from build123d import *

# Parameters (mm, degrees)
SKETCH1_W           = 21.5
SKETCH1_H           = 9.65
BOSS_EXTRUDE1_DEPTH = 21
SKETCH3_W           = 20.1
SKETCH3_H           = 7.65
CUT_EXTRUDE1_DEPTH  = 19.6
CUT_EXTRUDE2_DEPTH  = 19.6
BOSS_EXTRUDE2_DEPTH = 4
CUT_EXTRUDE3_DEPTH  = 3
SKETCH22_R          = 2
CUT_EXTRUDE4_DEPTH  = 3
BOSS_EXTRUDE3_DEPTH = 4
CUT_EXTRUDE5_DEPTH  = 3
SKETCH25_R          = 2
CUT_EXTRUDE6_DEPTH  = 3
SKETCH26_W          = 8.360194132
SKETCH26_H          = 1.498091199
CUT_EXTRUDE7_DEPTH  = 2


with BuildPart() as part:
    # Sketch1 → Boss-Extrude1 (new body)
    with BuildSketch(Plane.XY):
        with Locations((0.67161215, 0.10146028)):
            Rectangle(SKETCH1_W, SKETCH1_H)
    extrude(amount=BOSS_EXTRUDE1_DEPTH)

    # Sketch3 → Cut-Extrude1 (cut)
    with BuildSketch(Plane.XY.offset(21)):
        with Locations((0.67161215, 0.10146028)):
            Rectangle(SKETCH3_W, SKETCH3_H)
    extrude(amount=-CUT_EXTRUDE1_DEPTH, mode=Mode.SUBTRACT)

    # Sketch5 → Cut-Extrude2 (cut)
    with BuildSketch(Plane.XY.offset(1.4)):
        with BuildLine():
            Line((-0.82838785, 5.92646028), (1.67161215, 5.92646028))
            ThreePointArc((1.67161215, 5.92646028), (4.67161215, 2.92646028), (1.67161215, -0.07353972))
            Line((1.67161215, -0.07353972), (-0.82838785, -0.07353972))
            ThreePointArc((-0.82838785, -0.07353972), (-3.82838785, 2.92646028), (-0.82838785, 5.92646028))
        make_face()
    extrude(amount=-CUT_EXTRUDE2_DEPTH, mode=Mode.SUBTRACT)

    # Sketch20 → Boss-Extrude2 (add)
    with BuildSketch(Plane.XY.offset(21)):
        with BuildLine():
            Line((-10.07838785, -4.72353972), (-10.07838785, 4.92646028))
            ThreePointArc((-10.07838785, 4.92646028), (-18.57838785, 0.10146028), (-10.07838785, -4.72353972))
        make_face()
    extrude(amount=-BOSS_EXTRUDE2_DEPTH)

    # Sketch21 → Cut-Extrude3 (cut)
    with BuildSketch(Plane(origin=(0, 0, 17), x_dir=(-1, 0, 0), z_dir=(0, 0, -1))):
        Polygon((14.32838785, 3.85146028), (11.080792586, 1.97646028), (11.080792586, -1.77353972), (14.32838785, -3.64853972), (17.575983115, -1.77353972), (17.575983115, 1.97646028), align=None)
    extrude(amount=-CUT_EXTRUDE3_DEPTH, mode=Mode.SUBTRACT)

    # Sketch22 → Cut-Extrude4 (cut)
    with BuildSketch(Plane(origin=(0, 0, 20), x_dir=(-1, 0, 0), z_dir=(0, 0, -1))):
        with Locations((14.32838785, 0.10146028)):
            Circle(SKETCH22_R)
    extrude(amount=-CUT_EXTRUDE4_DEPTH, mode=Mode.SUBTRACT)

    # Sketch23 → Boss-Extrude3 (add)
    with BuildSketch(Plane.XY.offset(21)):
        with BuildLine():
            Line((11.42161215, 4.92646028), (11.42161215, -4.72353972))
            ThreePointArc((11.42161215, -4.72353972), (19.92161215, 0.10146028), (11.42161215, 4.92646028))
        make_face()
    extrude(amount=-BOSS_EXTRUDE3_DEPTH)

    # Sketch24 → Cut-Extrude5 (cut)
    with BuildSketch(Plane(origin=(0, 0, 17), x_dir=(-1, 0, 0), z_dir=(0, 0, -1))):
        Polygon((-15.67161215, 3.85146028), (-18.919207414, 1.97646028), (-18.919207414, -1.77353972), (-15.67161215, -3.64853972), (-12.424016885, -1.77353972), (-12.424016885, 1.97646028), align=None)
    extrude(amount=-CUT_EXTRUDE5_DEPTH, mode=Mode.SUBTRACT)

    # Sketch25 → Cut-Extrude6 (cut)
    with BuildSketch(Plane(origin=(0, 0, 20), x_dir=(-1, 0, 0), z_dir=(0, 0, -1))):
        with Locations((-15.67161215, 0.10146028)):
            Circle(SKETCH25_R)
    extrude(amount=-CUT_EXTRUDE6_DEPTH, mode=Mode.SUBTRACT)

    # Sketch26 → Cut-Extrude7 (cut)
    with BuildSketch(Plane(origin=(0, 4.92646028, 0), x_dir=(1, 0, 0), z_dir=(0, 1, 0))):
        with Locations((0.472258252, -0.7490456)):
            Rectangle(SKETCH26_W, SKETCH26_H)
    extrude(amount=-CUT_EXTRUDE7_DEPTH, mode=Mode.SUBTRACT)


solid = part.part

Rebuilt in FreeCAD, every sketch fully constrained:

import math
import FreeCAD as App
import Part
import Sketcher

V = App.Vector
Q = App.Units.Quantity

doc = App.newDocument("Part")
body = doc.addObject("PartDesign::Body", "Body")

# Sketch on XY plane
sketch1 = doc.addObject("Sketcher::SketchObject", "Sketch")
body.addObject(sketch1)
sketch1.AttachmentSupport = (doc.XY_Plane, [""])
sketch1.MapMode = "FlatFace"
sketch1.addGeometry(Part.LineSegment(V(-10, 5, 0), V(-10, -5, 0)), False)
sketch1.addGeometry(Part.LineSegment(V(-10, -5, 0), V(11, -5, 0)), False)
sketch1.addGeometry(Part.LineSegment(V(11, -5, 0), V(11, 5, 0)), False)
sketch1.addGeometry(Part.LineSegment(V(11, 5, 0), V(-10, 5, 0)), False)
sketch1.addConstraint(Sketcher.Constraint("Coincident", 0, 2, 1, 1))
sketch1.addConstraint(Sketcher.Constraint("Coincident", 1, 2, 2, 1))
sketch1.addConstraint(Sketcher.Constraint("Coincident", 2, 2, 3, 1))
sketch1.addConstraint(Sketcher.Constraint("Coincident", 3, 2, 0, 1))
sketch1.addConstraint(Sketcher.Constraint("Vertical", 0))
sketch1.addConstraint(Sketcher.Constraint("Horizontal", 1))
sketch1.addConstraint(Sketcher.Constraint("Vertical", 2))
sketch1.addConstraint(Sketcher.Constraint("Horizontal", 3))
sketch1.addConstraint(Sketcher.Constraint("DistanceX", 1, 1, 1, 2, 21.5))
sketch1.addConstraint(Sketcher.Constraint("DistanceY", 0, 2, 0, 1, 9.65))
sketch1.addConstraint(Sketcher.Constraint("DistanceY", 0, 2, -1, 1, 4.72354))
sketch1.addConstraint(Sketcher.Constraint("DistanceX", 0, 2, -1, 1, 10.078388))
pad1 = doc.addObject("PartDesign::Pad", "Pad")
body.addObject(pad1)
pad1.Profile = sketch1
pad1.Length = 21

# Sketch on XY plane
sketch2 = doc.addObject("Sketcher::SketchObject", "Sketch001")
body.addObject(sketch2)
sketch2.AttachmentSupport = (doc.XY_Plane, [""])
sketch2.MapMode = "FlatFace"
sketch2.AttachmentOffset = App.Placement(V(0, 0, 21), App.Rotation())
sketch2.addGeometry(Part.LineSegment(V(-9, 4, 0), V(-9, -4, 0)), False)
sketch2.addGeometry(Part.LineSegment(V(-9, -4, 0), V(11, -4, 0)), False)
sketch2.addGeometry(Part.LineSegment(V(11, -4, 0), V(11, 4, 0)), False)
sketch2.addGeometry(Part.LineSegment(V(11, 4, 0), V(-9, 4, 0)), False)
sketch2.addConstraint(Sketcher.Constraint("Coincident", 0, 2, 1, 1))
sketch2.addConstraint(Sketcher.Constraint("Coincident", 1, 2, 2, 1))
sketch2.addConstraint(Sketcher.Constraint("Coincident", 2, 2, 3, 1))
sketch2.addConstraint(Sketcher.Constraint("Coincident", 3, 2, 0, 1))
sketch2.addConstraint(Sketcher.Constraint("Vertical", 0))
sketch2.addConstraint(Sketcher.Constraint("Horizontal", 1))
sketch2.addConstraint(Sketcher.Constraint("Vertical", 2))
sketch2.addConstraint(Sketcher.Constraint("Horizontal", 3))
sketch2.addConstraint(Sketcher.Constraint("DistanceX", 1, 1, 1, 2, 20.1))
sketch2.addConstraint(Sketcher.Constraint("DistanceY", 0, 2, 0, 1, 7.65))
sketch2.addConstraint(Sketcher.Constraint("DistanceY", 0, 2, -1, 1, 3.72354))
sketch2.addConstraint(Sketcher.Constraint("DistanceX", 0, 2, -1, 1, 9.378388))
pocket1 = doc.addObject("PartDesign::Pocket", "Pocket")
body.addObject(pocket1)
pocket1.Profile = sketch2
pocket1.Length = 19.6

# Sketch on XY plane
sketch3 = doc.addObject("Sketcher::SketchObject", "Sketch002")
body.addObject(sketch3)
sketch3.AttachmentSupport = (doc.XY_Plane, [""])
sketch3.MapMode = "FlatFace"
sketch3.AttachmentOffset = App.Placement(V(0, 0, 1.4), App.Rotation())
sketch3.addGeometry(Part.LineSegment(V(1.7, 5.9, 0), V(-0.8, 5.9, 0)), False)
sketch3.addGeometry(Part.ArcOfCircle(Part.Circle(V(-0.8, 2.9, 0), V(0, 0, 1), 3), math.radians(90), math.radians(270)), False)
sketch3.addGeometry(Part.LineSegment(V(-0.8, -0.1, 0), V(1.7, -0.1, 0)), False)
sketch3.addGeometry(Part.ArcOfCircle(Part.Circle(V(1.7, 2.9, 0), V(0, 0, 1), 3), math.radians(-90), math.radians(90)), False)
sketch3.addConstraint(Sketcher.Constraint("Tangent", 0, 2, 1, 1))
sketch3.addConstraint(Sketcher.Constraint("Tangent", 1, 2, 2, 1))
sketch3.addConstraint(Sketcher.Constraint("Tangent", 2, 2, 3, 1))
sketch3.addConstraint(Sketcher.Constraint("Tangent", 3, 2, 0, 1))
sketch3.addConstraint(Sketcher.Constraint("Horizontal", 0))
sketch3.addConstraint(Sketcher.Constraint("Horizontal", 2))
sketch3.addConstraint(Sketcher.Constraint("Radius", 1, 3.0))
sketch3.addConstraint(Sketcher.Constraint("DistanceX", 0, 2, 0, 1, 2.5))
sketch3.addConstraint(Sketcher.Constraint("DistanceY", -1, 1, 1, 3, 2.92646))
sketch3.addConstraint(Sketcher.Constraint("DistanceX", 1, 3, -1, 1, 0.828388))
pocket2 = doc.addObject("PartDesign::Pocket", "Pocket001")
body.addObject(pocket2)
pocket2.Profile = sketch3
pocket2.Length = 19.6

# Sketch on XY plane
sketch4 = doc.addObject("Sketcher::SketchObject", "Sketch003")
body.addObject(sketch4)
sketch4.AttachmentSupport = (doc.XY_Plane, [""])
sketch4.MapMode = "FlatFace"
sketch4.AttachmentOffset = App.Placement(V(0, 0, 21), App.Rotation())
sketch4.addGeometry(Part.LineSegment(V(-10, -5, 0), V(-10, 5, 0)), False)
sketch4.addGeometry(Part.ArcOfCircle(Part.Circle(V(-13, 0, 0), V(0, 0, 1), 6), math.radians(59), math.radians(301)), False)
sketch4.addConstraint(Sketcher.Constraint("Coincident", 0, 1, 1, 2))
sketch4.addConstraint(Sketcher.Constraint("Coincident", 1, 1, 0, 2))
sketch4.addConstraint(Sketcher.Constraint("Vertical", 0))
sketch4.addConstraint(Sketcher.Constraint("DistanceY", 0, 1, 0, 2, 9.65))
sketch4.addConstraint(Sketcher.Constraint("Radius", 1, 5.619449))
sketch4.addConstraint(Sketcher.Constraint("DistanceX", 1, 3, -1, 1, 12.958939))
sketch4.addConstraint(Sketcher.Constraint("DistanceY", -1, 1, 1, 3, 0.10146))
pad2 = doc.addObject("PartDesign::Pad", "Pad001")
body.addObject(pad2)
pad2.Profile = sketch4
pad2.Length = 4
pad2.Reversed = True

# Sketch on XY plane
sketch5 = doc.addObject("Sketcher::SketchObject", "Sketch004")
body.addObject(sketch5)
sketch5.AttachmentSupport = (doc.XY_Plane, [""])
sketch5.MapMode = "FlatFace"
sketch5.AttachmentOffset = App.Placement(V(0, 0, 17), App.Rotation())
sketch5.addGeometry(Part.LineSegment(V(-14.3, 3.9, 0), V(-11.1, 2, 0)), False)
sketch5.addGeometry(Part.LineSegment(V(-11.1, 2, 0), V(-11.1, -1.8, 0)), False)
sketch5.addGeometry(Part.LineSegment(V(-11.1, -1.8, 0), V(-14.3, -3.6, 0)), False)
sketch5.addGeometry(Part.LineSegment(V(-14.3, -3.6, 0), V(-17.6, -1.8, 0)), False)
sketch5.addGeometry(Part.LineSegment(V(-17.6, -1.8, 0), V(-17.6, 2, 0)), False)
sketch5.addGeometry(Part.LineSegment(V(-17.6, 2, 0), V(-14.3, 3.9, 0)), False)
sketch5.addConstraint(Sketcher.Constraint("Coincident", 0, 2, 1, 1))
sketch5.addConstraint(Sketcher.Constraint("Coincident", 1, 2, 2, 1))
sketch5.addConstraint(Sketcher.Constraint("Coincident", 2, 2, 3, 1))
sketch5.addConstraint(Sketcher.Constraint("Coincident", 3, 2, 4, 1))
sketch5.addConstraint(Sketcher.Constraint("Coincident", 4, 2, 5, 1))
sketch5.addConstraint(Sketcher.Constraint("Coincident", 5, 2, 0, 1))
sketch5.addConstraint(Sketcher.Constraint("Vertical", 1))
sketch5.addConstraint(Sketcher.Constraint("Vertical", 4))
sketch5.addConstraint(Sketcher.Constraint("Parallel", 0, 3))
sketch5.addConstraint(Sketcher.Constraint("Parallel", 2, 5))
sketch5.addConstraint(Sketcher.Constraint("Horizontal", 1, 2, 3, 2))
sketch5.addConstraint(Sketcher.Constraint("Horizontal", 0, 2, 4, 2))
sketch5.addConstraint(Sketcher.Constraint("Vertical", 2, 2, 5, 2))
sketch5.addConstraint(Sketcher.Constraint("Angle", 0, Q("-30 deg")))
sketch5.addConstraint(Sketcher.Constraint("DistanceY", 1, 2, 1, 1, 3.75))
sketch5.addConstraint(Sketcher.Constraint("DistanceY", 2, 2, 5, 2, 7.5))
sketch5.addConstraint(Sketcher.Constraint("DistanceY", -1, 1, 0, 2, 1.97646))
sketch5.addConstraint(Sketcher.Constraint("DistanceX", 0, 2, -1, 1, 11.080793))
pocket3 = doc.addObject("PartDesign::Pocket", "Pocket002")
body.addObject(pocket3)
pocket3.Profile = sketch5
pocket3.Length = 3
pocket3.Reversed = True

# Sketch on XY plane
sketch6 = doc.addObject("Sketcher::SketchObject", "Sketch005")
body.addObject(sketch6)
sketch6.AttachmentSupport = (doc.XY_Plane, [""])
sketch6.MapMode = "FlatFace"
sketch6.AttachmentOffset = App.Placement(V(0, 0, 20), App.Rotation())
sketch6.addGeometry(Part.Circle(V(-14.3, 0.1, 0), V(0, 0, 1), 2), False)
sketch6.addConstraint(Sketcher.Constraint("Diameter", 0, 4.0))
sketch6.addConstraint(Sketcher.Constraint("DistanceY", -1, 1, 0, 3, 0.10146))
sketch6.addConstraint(Sketcher.Constraint("DistanceX", 0, 3, -1, 1, 14.328388))
pocket4 = doc.addObject("PartDesign::Pocket", "Pocket003")
body.addObject(pocket4)
pocket4.Profile = sketch6
pocket4.Length = 3
pocket4.Reversed = True

# Sketch on XY plane
sketch7 = doc.addObject("Sketcher::SketchObject", "Sketch006")
body.addObject(sketch7)
sketch7.AttachmentSupport = (doc.XY_Plane, [""])
sketch7.MapMode = "FlatFace"
sketch7.AttachmentOffset = App.Placement(V(0, 0, 21), App.Rotation())
sketch7.addGeometry(Part.LineSegment(V(11, 5, 0), V(11, -5, 0)), False)
sketch7.addGeometry(Part.ArcOfCircle(Part.Circle(V(14, 0, 0), V(0, 0, 1), 6), math.radians(-121), math.radians(121)), False)
sketch7.addConstraint(Sketcher.Constraint("Coincident", 0, 1, 1, 2))
sketch7.addConstraint(Sketcher.Constraint("Coincident", 1, 1, 0, 2))
sketch7.addConstraint(Sketcher.Constraint("Vertical", 0))
sketch7.addConstraint(Sketcher.Constraint("DistanceY", 0, 2, 0, 1, 9.65))
sketch7.addConstraint(Sketcher.Constraint("Radius", 1, 5.619449))
sketch7.addConstraint(Sketcher.Constraint("DistanceY", -1, 1, 1, 3, 0.10146))
sketch7.addConstraint(Sketcher.Constraint("DistanceX", -1, 1, 1, 3, 14.302164))
pad3 = doc.addObject("PartDesign::Pad", "Pad002")
body.addObject(pad3)
pad3.Profile = sketch7
pad3.Length = 4
pad3.Reversed = True

# Sketch on XY plane
sketch8 = doc.addObject("Sketcher::SketchObject", "Sketch007")
body.addObject(sketch8)
sketch8.AttachmentSupport = (doc.XY_Plane, [""])
sketch8.MapMode = "FlatFace"
sketch8.AttachmentOffset = App.Placement(V(0, 0, 17), App.Rotation())
sketch8.addGeometry(Part.LineSegment(V(15.7, 3.9, 0), V(18.9, 2, 0)), False)
sketch8.addGeometry(Part.LineSegment(V(18.9, 2, 0), V(18.9, -1.8, 0)), False)
sketch8.addGeometry(Part.LineSegment(V(18.9, -1.8, 0), V(15.7, -3.6, 0)), False)
sketch8.addGeometry(Part.LineSegment(V(15.7, -3.6, 0), V(12.4, -1.8, 0)), False)
sketch8.addGeometry(Part.LineSegment(V(12.4, -1.8, 0), V(12.4, 2, 0)), False)
sketch8.addGeometry(Part.LineSegment(V(12.4, 2, 0), V(15.7, 3.9, 0)), False)
sketch8.addConstraint(Sketcher.Constraint("Coincident", 0, 2, 1, 1))
sketch8.addConstraint(Sketcher.Constraint("Coincident", 1, 2, 2, 1))
sketch8.addConstraint(Sketcher.Constraint("Coincident", 2, 2, 3, 1))
sketch8.addConstraint(Sketcher.Constraint("Coincident", 3, 2, 4, 1))
sketch8.addConstraint(Sketcher.Constraint("Coincident", 4, 2, 5, 1))
sketch8.addConstraint(Sketcher.Constraint("Coincident", 5, 2, 0, 1))
sketch8.addConstraint(Sketcher.Constraint("Vertical", 1))
sketch8.addConstraint(Sketcher.Constraint("Vertical", 4))
sketch8.addConstraint(Sketcher.Constraint("Parallel", 0, 3))
sketch8.addConstraint(Sketcher.Constraint("Parallel", 2, 5))
sketch8.addConstraint(Sketcher.Constraint("Horizontal", 1, 2, 3, 2))
sketch8.addConstraint(Sketcher.Constraint("Horizontal", 0, 2, 4, 2))
sketch8.addConstraint(Sketcher.Constraint("Vertical", 2, 2, 5, 2))
sketch8.addConstraint(Sketcher.Constraint("Angle", 0, Q("-30 deg")))
sketch8.addConstraint(Sketcher.Constraint("DistanceY", 1, 2, 1, 1, 3.75))
sketch8.addConstraint(Sketcher.Constraint("DistanceY", 2, 2, 5, 2, 7.5))
sketch8.addConstraint(Sketcher.Constraint("DistanceY", -1, 1, 0, 2, 1.97646))
sketch8.addConstraint(Sketcher.Constraint("DistanceX", -1, 1, 0, 2, 18.919207))
pocket5 = doc.addObject("PartDesign::Pocket", "Pocket004")
body.addObject(pocket5)
pocket5.Profile = sketch8
pocket5.Length = 3
pocket5.Reversed = True

# Sketch on XY plane
sketch9 = doc.addObject("Sketcher::SketchObject", "Sketch008")
body.addObject(sketch9)
sketch9.AttachmentSupport = (doc.XY_Plane, [""])
sketch9.MapMode = "FlatFace"
sketch9.AttachmentOffset = App.Placement(V(0, 0, 20), App.Rotation())
sketch9.addGeometry(Part.Circle(V(15.7, 0.1, 0), V(0, 0, 1), 2), False)
sketch9.addConstraint(Sketcher.Constraint("Diameter", 0, 4.0))
sketch9.addConstraint(Sketcher.Constraint("DistanceY", -1, 1, 0, 3, 0.10146))
sketch9.addConstraint(Sketcher.Constraint("DistanceX", -1, 1, 0, 3, 15.671612))
pocket6 = doc.addObject("PartDesign::Pocket", "Pocket005")
body.addObject(pocket6)
pocket6.Profile = sketch9
pocket6.Length = 3
pocket6.Reversed = True

# Sketch on XZ plane
sketch10 = doc.addObject("Sketcher::SketchObject", "Sketch009")
body.addObject(sketch10)
sketch10.AttachmentSupport = (doc.XZ_Plane, [""])
sketch10.MapMode = "FlatFace"
sketch10.AttachmentOffset = App.Placement(V(0, 0, -4.92646), App.Rotation())
sketch10.addGeometry(Part.LineSegment(V(-3.7, 0, 0), V(-3.7, 1.5, 0)), False)
sketch10.addGeometry(Part.LineSegment(V(-3.7, 1.5, 0), V(4.7, 1.5, 0)), False)
sketch10.addGeometry(Part.LineSegment(V(4.7, 1.5, 0), V(4.7, 0, 0)), False)
sketch10.addGeometry(Part.LineSegment(V(4.7, 0, 0), V(-3.7, 0, 0)), False)
sketch10.addConstraint(Sketcher.Constraint("Coincident", 0, 2, 1, 1))
sketch10.addConstraint(Sketcher.Constraint("Coincident", 1, 2, 2, 1))
sketch10.addConstraint(Sketcher.Constraint("Coincident", 2, 2, 3, 1))
sketch10.addConstraint(Sketcher.Constraint("Coincident", 3, 2, 0, 1))
sketch10.addConstraint(Sketcher.Constraint("Vertical", 0))
sketch10.addConstraint(Sketcher.Constraint("Horizontal", 1))
sketch10.addConstraint(Sketcher.Constraint("Vertical", 2))
sketch10.addConstraint(Sketcher.Constraint("Horizontal", 3))
sketch10.addConstraint(Sketcher.Constraint("PointOnObject", 2, 2, -1))
sketch10.addConstraint(Sketcher.Constraint("DistanceY", 0, 1, 0, 2, 1.498091))
sketch10.addConstraint(Sketcher.Constraint("DistanceX", 1, 1, 1, 2, 8.360194))
sketch10.addConstraint(Sketcher.Constraint("DistanceX", 0, 2, -1, 1, 3.707839))
pocket7 = doc.addObject("PartDesign::Pocket", "Pocket006")
body.addObject(pocket7)
pocket7.Profile = sketch10
pocket7.Length = 2
pocket7.Reversed = True

doc.recompute()
